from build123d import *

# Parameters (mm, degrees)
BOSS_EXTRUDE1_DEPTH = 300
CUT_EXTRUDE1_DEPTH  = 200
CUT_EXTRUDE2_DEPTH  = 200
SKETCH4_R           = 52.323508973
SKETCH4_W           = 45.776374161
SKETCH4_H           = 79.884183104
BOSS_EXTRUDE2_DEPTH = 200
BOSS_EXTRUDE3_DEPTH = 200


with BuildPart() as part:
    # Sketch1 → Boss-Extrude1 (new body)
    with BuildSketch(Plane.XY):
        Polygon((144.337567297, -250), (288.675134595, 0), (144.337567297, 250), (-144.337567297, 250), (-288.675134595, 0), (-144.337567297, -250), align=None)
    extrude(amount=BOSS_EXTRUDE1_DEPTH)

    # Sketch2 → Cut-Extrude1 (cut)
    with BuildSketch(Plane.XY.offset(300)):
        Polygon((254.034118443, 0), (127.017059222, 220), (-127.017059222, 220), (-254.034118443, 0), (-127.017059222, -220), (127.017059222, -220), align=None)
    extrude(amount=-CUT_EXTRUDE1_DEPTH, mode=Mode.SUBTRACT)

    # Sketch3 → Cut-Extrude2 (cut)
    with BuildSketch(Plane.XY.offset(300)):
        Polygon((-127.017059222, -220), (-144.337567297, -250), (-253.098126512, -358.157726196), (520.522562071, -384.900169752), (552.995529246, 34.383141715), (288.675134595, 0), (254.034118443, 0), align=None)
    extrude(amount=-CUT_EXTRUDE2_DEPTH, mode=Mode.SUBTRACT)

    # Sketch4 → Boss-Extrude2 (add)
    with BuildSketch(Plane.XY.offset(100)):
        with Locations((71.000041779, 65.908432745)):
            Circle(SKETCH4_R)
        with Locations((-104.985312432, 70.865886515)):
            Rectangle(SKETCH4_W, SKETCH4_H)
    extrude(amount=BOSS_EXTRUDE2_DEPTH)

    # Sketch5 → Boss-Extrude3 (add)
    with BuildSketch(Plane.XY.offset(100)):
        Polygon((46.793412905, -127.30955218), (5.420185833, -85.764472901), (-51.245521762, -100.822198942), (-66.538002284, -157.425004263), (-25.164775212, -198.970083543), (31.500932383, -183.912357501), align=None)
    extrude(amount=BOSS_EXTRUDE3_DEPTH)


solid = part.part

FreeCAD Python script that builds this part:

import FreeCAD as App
import Part
import Sketcher

V = App.Vector
Q = App.Units.Quantity


def add_polygon(sketch, points):
    """Adds a closed chain of lines whose ends are joined by coincident constraints."""
    first, n = sketch.GeometryCount, len(points)
    for a, b in zip(points, points[1:] + points[:1]):
        sketch.addGeometry(Part.LineSegment(App.Vector(*a, 0), App.Vector(*b, 0)), False)
    for i in range(n):
        sketch.addConstraint(Sketcher.Constraint("Coincident", first + i, 2, first + (i + 1) % n, 1))

doc = App.newDocument("Part")
body = doc.addObject("PartDesign::Body", "Body")

sketch1 = body.newObject("Sketcher::SketchObject", "Sketch")
sketch1.AttachmentSupport = (doc.getObject("XY_Plane"), [""])
sketch1.MapMode = "FlatFace"
add_polygon(sketch1, [(144, -250), (289, 0), (144, 250), (-144, 250), (-289, 0), (-144, -250)])
sketch1.addConstraint([
    Sketcher.Constraint("Horizontal", 2),
    Sketcher.Constraint("Horizontal", 5),
    Sketcher.Constraint("Symmetric", 0, 2, 3, 2, -1, 1),
    Sketcher.Constraint("Symmetric", 1, 2, 4, 2, -1, 1),
    Sketcher.Constraint("PointOnObject", 0, 2, -1),
    Sketcher.Constraint("Parallel", 0, 3),
    Sketcher.Constraint("Vertical", 2, 2, 4, 2),
    Sketcher.Constraint("Angle", 0, Q("60 deg")),
    Sketcher.Constraint("DistanceY", -1, 1, 1, 2, Q("250 mm")),
    Sketcher.Constraint("DistanceX", 2, 2, 0, 2, Q("433.012702 mm")),
])
pad1 = body.newObject("PartDesign::Pad", "Pad")
pad1.Profile = sketch1
pad1.Length = 300

sketch2 = body.newObject("Sketcher::SketchObject", "Sketch001")
sketch2.AttachmentSupport = (doc.getObject("XY_Plane"), [""])
sketch2.MapMode = "FlatFace"
sketch2.AttachmentOffset = App.Placement(V(0, 0, 300), App.Rotation())
add_polygon(sketch2, [(254, 0), (127, 220), (-127, 220), (-254, 0), (-127, -220), (127, -220)])
sketch2.addConstraint([
    Sketcher.Constraint("Horizontal", 1),
    Sketcher.Constraint("Horizontal", 4),
    Sketcher.Constraint("Symmetric", 0, 2, 3, 2, -1, 1),
    Sketcher.Constraint("Symmetric", 2, 2, 5, 2, -1, 1),
    Sketcher.Constraint("PointOnObject", 2, 2, -1),
    Sketcher.Constraint("Parallel", 2, 5),
    Sketcher.Constraint("Vertical", 1, 2, 3, 2),
    Sketcher.Constraint("Angle", 0, Q("120 deg")),
    Sketcher.Constraint("DistanceY", -1, 1, 0, 2, Q("220 mm")),
    Sketcher.Constraint("DistanceX", 1, 2, 1, 1, Q("254.034118 mm")),
])
pocket1 = body.newObject("PartDesign::Pocket", "Pocket")
pocket1.Profile = sketch2
pocket1.Length = 200

sketch3 = body.newObject("Sketcher::SketchObject", "Sketch002")
sketch3.AttachmentSupport = (doc.getObject("XY_Plane"), [""])
sketch3.MapMode = "FlatFace"
sketch3.AttachmentOffset = App.Placement(V(0, 0, 300), App.Rotation())
add_polygon(sketch3, [(-127, -220), (-144, -250), (-253, -358), (521, -385), (553, 34), (289, 0), (254, 0)])
sketch3.addConstraint([
    Sketcher.Constraint("Horizontal", 5),
    Sketcher.Constraint("PointOnObject", 4, 2, -1),
    Sketcher.Constraint("Angle", 0, Q("-120 deg")),
    Sketcher.Constraint("Angle", 6, Q("-150 deg")),
    Sketcher.Constraint("Distance", 6, Q("440 mm")),
    Sketcher.Constraint("DistanceY", 0, 2, -1, 1, Q("250 mm")),
    Sketcher.Constraint("DistanceX", 0, 2, 4, 2, Q("433.012702 mm")),
    Sketcher.Constraint("DistanceY", 2, 2, -1, 1, Q("384.90017 mm")),
    Sketcher.Constraint("DistanceX", -1, 1, 3, 2, Q("552.995529 mm")),
    Sketcher.Constraint("DistanceY", -1, 1, 3, 2, Q("34.383142 mm")),
    Sketcher.Constraint("DistanceX", -1, 1, 5, 2, Q("254.034118 mm")),
    Sketcher.Constraint("DistanceX", 1, 2, 0, 2, Q("108.760559 mm")),
    Sketcher.Constraint("DistanceX", 0, 2, 2, 2, Q("664.860129 mm")),
    Sketcher.Constraint("Distance", 1, Q("153.384983 mm")),
])
pocket2 = body.newObject("PartDesign::Pocket", "Pocket001")
pocket2.Profile = sketch3
pocket2.Length = 200

sketch4 = body.newObject("Sketcher::SketchObject", "Sketch003")
sketch4.AttachmentSupport = (doc.getObject("XY_Plane"), [""])
sketch4.MapMode = "FlatFace"
sketch4.AttachmentOffset = App.Placement(V(0, 0, 100), App.Rotation())
sketch4.addGeometry(Part.Circle(V(71, 66, 0), V(0, 0, 1), 52), False)
add_polygon(sketch4, [(-128, 111), (-128, 31), (-82, 31), (-82, 111)])
sketch4.addConstraint([
    Sketcher.Constraint("Vertical", 1),
    Sketcher.Constraint("Horizontal", 2),
    Sketcher.Constraint("Vertical", 3),
    Sketcher.Constraint("Horizontal", 4),
    Sketcher.Constraint("Diameter", 0, Q("104.647018 mm")),
    Sketcher.Constraint("DistanceX", 1, 2, -1, 1, Q("127.8735 mm")),
    Sketcher.Constraint("DistanceX", 2, 1, 2, 2, Q("45.776374 mm")),
    Sketcher.Constraint("DistanceY", 1, 2, 1, 1, Q("79.884183 mm")),
    Sketcher.Constraint("DistanceX", -1, 1, 0, 3, Q("71.000042 mm")),
    Sketcher.Constraint("DistanceY", -1, 1, 3, 2, Q("110.807978 mm")),
    Sketcher.Constraint("DistanceY", -1, 1, 0, 3, Q("65.908433 mm")),
])
pad2 = body.newObject("PartDesign::Pad", "Pad001")
pad2.Profile = sketch4
pad2.Length = 200

sketch5 = body.newObject("Sketcher::SketchObject", "Sketch004")
sketch5.AttachmentSupport = (doc.getObject("XY_Plane"), [""])
sketch5.MapMode = "FlatFace"
sketch5.AttachmentOffset = App.Placement(V(0, 0, 100), App.Rotation())
add_polygon(sketch5, [(47, -127), (5, -86), (-51, -101), (-67, -157), (-25, -199), (32, -184)])
sketch5.addConstraint([
    Sketcher.Constraint("Parallel", 0, 3),
    Sketcher.Constraint("Parallel", 1, 4),
    Sketcher.Constraint("Parallel", 2, 5),
    Sketcher.Constraint("Equal", 0, 1),
    Sketcher.Constraint("Equal", 1, 2),
    Sketcher.Constraint("Equal", 2, 3),
    Sketcher.Constraint("DistanceY", 1, 2, -1, 1, Q("100.822199 mm")),
    Sketcher.Constraint("DistanceX", 1, 2, -1, 1, Q("51.245522 mm")),
    Sketcher.Constraint("DistanceX", 2, 2, 1, 2, Q("15.292481 mm")),
    Sketcher.Constraint("DistanceX", 2, 2, 0, 2, Q("71.958188 mm")),
    Sketcher.Constraint("DistanceY", 2, 2, 0, 2, Q("71.660531 mm")),
    Sketcher.Constraint("DistanceY", 3, 2, 2, 2, Q("41.545079 mm")),
])
pad3 = body.newObject("PartDesign::Pad", "Pad002")
pad3.Profile = sketch5
pad3.Length = 200

doc.recompute()
